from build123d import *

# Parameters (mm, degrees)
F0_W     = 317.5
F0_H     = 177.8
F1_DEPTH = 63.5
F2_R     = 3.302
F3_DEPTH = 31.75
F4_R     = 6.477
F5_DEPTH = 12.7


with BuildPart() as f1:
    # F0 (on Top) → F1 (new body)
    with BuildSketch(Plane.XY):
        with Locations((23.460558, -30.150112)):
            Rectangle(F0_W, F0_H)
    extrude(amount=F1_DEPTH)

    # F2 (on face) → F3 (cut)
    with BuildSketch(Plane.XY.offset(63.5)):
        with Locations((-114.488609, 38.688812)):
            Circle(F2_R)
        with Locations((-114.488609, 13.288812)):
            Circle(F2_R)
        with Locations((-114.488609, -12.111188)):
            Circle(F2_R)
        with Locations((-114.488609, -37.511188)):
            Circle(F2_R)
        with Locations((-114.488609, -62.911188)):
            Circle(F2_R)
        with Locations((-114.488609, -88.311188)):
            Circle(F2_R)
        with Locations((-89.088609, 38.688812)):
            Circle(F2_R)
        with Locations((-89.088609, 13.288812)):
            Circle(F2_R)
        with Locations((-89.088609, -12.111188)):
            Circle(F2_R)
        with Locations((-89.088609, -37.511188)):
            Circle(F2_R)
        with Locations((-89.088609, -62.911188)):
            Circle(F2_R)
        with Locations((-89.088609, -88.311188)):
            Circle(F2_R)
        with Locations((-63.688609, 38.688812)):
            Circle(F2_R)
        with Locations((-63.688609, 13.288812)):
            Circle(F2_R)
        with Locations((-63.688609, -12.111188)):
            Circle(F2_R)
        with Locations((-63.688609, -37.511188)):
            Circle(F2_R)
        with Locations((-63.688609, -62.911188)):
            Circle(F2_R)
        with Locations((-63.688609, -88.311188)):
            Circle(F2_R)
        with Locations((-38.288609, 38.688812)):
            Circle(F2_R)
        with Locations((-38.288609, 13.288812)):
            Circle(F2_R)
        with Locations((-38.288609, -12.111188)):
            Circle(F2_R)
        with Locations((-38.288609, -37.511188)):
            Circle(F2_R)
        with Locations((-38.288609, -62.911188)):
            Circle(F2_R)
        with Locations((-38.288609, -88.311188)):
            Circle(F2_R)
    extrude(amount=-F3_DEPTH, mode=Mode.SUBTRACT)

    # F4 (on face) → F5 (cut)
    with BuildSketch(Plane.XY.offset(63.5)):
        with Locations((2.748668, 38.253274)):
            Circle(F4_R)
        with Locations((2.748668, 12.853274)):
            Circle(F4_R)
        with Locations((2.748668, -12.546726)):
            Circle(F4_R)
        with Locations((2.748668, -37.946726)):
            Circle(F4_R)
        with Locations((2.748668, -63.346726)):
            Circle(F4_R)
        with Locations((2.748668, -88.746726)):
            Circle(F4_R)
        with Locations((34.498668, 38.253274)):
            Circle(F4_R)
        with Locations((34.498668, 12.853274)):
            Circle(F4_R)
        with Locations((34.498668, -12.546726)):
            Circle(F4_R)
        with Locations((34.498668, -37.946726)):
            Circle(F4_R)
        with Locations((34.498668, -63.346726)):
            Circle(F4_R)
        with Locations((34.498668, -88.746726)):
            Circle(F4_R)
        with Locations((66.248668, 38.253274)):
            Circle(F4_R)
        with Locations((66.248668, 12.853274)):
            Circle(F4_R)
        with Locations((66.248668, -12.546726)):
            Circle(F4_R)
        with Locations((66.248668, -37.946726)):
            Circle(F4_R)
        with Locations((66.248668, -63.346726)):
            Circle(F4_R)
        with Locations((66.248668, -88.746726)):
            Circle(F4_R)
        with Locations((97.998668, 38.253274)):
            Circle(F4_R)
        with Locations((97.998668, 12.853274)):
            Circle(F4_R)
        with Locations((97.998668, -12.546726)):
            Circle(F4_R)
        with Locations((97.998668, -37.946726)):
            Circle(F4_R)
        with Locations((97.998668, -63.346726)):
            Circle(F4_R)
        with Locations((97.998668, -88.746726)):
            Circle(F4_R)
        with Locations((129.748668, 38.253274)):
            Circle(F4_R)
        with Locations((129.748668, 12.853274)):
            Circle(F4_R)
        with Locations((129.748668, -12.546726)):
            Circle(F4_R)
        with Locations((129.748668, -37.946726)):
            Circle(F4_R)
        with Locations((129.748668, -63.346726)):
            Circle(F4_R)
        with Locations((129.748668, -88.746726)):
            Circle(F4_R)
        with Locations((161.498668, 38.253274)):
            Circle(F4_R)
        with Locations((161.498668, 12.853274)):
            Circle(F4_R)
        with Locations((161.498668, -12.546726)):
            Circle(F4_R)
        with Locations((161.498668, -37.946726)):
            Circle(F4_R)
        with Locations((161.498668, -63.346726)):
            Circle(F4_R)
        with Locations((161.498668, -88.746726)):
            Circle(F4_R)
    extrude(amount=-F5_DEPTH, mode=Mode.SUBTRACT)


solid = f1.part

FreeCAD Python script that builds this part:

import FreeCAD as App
import Part
import Sketcher
Q = App.Units.Quantity

doc = App.newDocument("Part")
body = doc.addObject("PartDesign::Body", "Body")

sketch1 = body.newObject("Sketcher::SketchObject", "Sketch")
sketch1.AttachmentSupport = (doc.getObject("XY_Plane"), [""])
sketch1.MapMode = "FlatFace"
sketch1.addGeometry(Part.LineSegment(App.Vector(-135, 59, 0), App.Vector(-135, -119, 0)), False)
sketch1.addGeometry(Part.LineSegment(App.Vector(-135, -119, 0), App.Vector(182, -119, 0)), False)
sketch1.addGeometry(Part.LineSegment(App.Vector(182, -119, 0), App.Vector(182, 59, 0)), False)
sketch1.addGeometry(Part.LineSegment(App.Vector(182, 59, 0), App.Vector(-135, 59, 0)), False)
sketch1.addConstraint(Sketcher.Constraint("Coincident", 0, 2, 1, 1))
sketch1.addConstraint(Sketcher.Constraint("Coincident", 1, 2, 2, 1))
sketch1.addConstraint(Sketcher.Constraint("Coincident", 2, 2, 3, 1))
sketch1.addConstraint(Sketcher.Constraint("Coincident", 3, 2, 0, 1))
sketch1.addConstraint(Sketcher.Constraint("Vertical", 0))
sketch1.addConstraint(Sketcher.Constraint("Horizontal", 1))
sketch1.addConstraint(Sketcher.Constraint("Vertical", 2))
sketch1.addConstraint(Sketcher.Constraint("Horizontal", 3))
sketch1.addConstraint(Sketcher.Constraint("DistanceY", 0, 2, 0, 1, Q("7 in")))
sketch1.addConstraint(Sketcher.Constraint("DistanceX", 1, 1, 1, 2, Q("12.5 in")))
sketch1.addConstraint(Sketcher.Constraint("DistanceX", 0, 2, -1, 1, Q("135.289442 mm")))
sketch1.addConstraint(Sketcher.Constraint("DistanceY", 0, 2, -1, 1, Q("119.050112 mm")))
pad1 = body.newObject("PartDesign::Pad", "Pad")
pad1.Profile = sketch1
pad1.Length = Q("2.5 in")

sketch2 = body.newObject("Sketcher::SketchObject", "Sketch001")
sketch2.AttachmentSupport = (doc.getObject("XY_Plane"), [""])
sketch2.MapMode = "FlatFace"
sketch2.AttachmentOffset = App.Placement(App.Vector(0, 0, 2.5 * 25.4), App.Rotation())
sketch2.addGeometry(Part.Circle(App.Vector(-114.5, 38.7, 0), App.Vector(0, 0, 1), 3.3), False)
sketch2.addGeometry(Part.Circle(App.Vector(-114.5, 13.3, 0), App.Vector(0, 0, 1), 3.3), False)
sketch2.addGeometry(Part.Circle(App.Vector(-114.5, -12.1, 0), App.Vector(0, 0, 1), 3.3), False)
sketch2.addGeometry(Part.Circle(App.Vector(-114.5, -37.5, 0), App.Vector(0, 0, 1), 3.3), False)
sketch2.addGeometry(Part.Circle(App.Vector(-114.5, -62.9, 0), App.Vector(0, 0, 1), 3.3), False)
sketch2.addGeometry(Part.Circle(App.Vector(-114.5, -88.3, 0), App.Vector(0, 0, 1), 3.3), False)
sketch2.addGeometry(Part.Circle(App.Vector(-89.1, 38.7, 0), App.Vector(0, 0, 1), 3.3), False)
sketch2.addGeometry(Part.Circle(App.Vector(-89.1, 13.3, 0), App.Vector(0, 0, 1), 3.3), False)
sketch2.addGeometry(Part.Circle(App.Vector(-89.1, -12.1, 0), App.Vector(0, 0, 1), 3.3), False)
sketch2.addGeometry(Part.Circle(App.Vector(-89.1, -37.5, 0), App.Vector(0, 0, 1), 3.3), False)
sketch2.addGeometry(Part.Circle(App.Vector(-89.1, -62.9, 0), App.Vector(0, 0, 1), 3.3), False)
sketch2.addGeometry(Part.Circle(App.Vector(-89.1, -88.3, 0), App.Vector(0, 0, 1), 3.3), False)
sketch2.addGeometry(Part.Circle(App.Vector(-63.7, 38.7, 0), App.Vector(0, 0, 1), 3.3), False)
sketch2.addGeometry(Part.Circle(App.Vector(-63.7, 13.3, 0), App.Vector(0, 0, 1), 3.3), False)
sketch2.addGeometry(Part.Circle(App.Vector(-63.7, -12.1, 0), App.Vector(0, 0, 1), 3.3), False)
sketch2.addGeometry(Part.Circle(App.Vector(-63.7, -37.5, 0), App.Vector(0, 0, 1), 3.3), False)
sketch2.addGeometry(Part.Circle(App.Vector(-63.7, -62.9, 0), App.Vector(0, 0, 1), 3.3), False)
sketch2.addGeometry(Part.Circle(App.Vector(-63.7, -88.3, 0), App.Vector(0, 0, 1), 3.3), False)
sketch2.addGeometry(Part.Circle(App.Vector(-38.3, 38.7, 0), App.Vector(0, 0, 1), 3.3), False)
sketch2.addGeometry(Part.Circle(App.Vector(-38.3, 13.3, 0), App.Vector(0, 0, 1), 3.3), False)
sketch2.addGeometry(Part.Circle(App.Vector(-38.3, -12.1, 0), App.Vector(0, 0, 1), 3.3), False)
sketch2.addGeometry(Part.Circle(App.Vector(-38.3, -37.5, 0), App.Vector(0, 0, 1), 3.3), False)
sketch2.addGeometry(Part.Circle(App.Vector(-38.3, -62.9, 0), App.Vector(0, 0, 1), 3.3), False)
sketch2.addGeometry(Part.Circle(App.Vector(-38.3, -88.3, 0), App.Vector(0, 0, 1), 3.3), False)
sketch2.addConstraint(Sketcher.Constraint("Equal", 0, 1))
sketch2.addConstraint(Sketcher.Constraint("Equal", 1, 2))
sketch2.addConstraint(Sketcher.Constraint("Equal", 2, 3))
sketch2.addConstraint(Sketcher.Constraint("Equal", 3, 4))
sketch2.addConstraint(Sketcher.Constraint("Equal", 4, 5))
sketch2.addConstraint(Sketcher.Constraint("Equal", 5, 6))
sketch2.addConstraint(Sketcher.Constraint("Equal", 6, 7))
sketch2.addConstraint(Sketcher.Constraint("Equal", 7, 8))
sketch2.addConstraint(Sketcher.Constraint("Equal", 8, 9))
sketch2.addConstraint(Sketcher.Constraint("Equal", 9, 10))
sketch2.addConstraint(Sketcher.Constraint("Equal", 10, 11))
sketch2.addConstraint(Sketcher.Constraint("Equal", 11, 12))
sketch2.addConstraint(Sketcher.Constraint("Equal", 12, 13))
sketch2.addConstraint(Sketcher.Constraint("Equal", 13, 14))
sketch2.addConstraint(Sketcher.Constraint("Equal", 14, 15))
sketch2.addConstraint(Sketcher.Constraint("Equal", 15, 16))
sketch2.addConstraint(Sketcher.Constraint("Equal", 16, 17))
sketch2.addConstraint(Sketcher.Constraint("Equal", 17, 18))
sketch2.addConstraint(Sketcher.Constraint("Equal", 18, 19))
sketch2.addConstraint(Sketcher.Constraint("Equal", 19, 20))
sketch2.addConstraint(Sketcher.Constraint("Equal", 20, 21))
sketch2.addConstraint(Sketcher.Constraint("Equal", 21, 22))
sketch2.addConstraint(Sketcher.Constraint("Equal", 22, 23))
sketch2.addConstraint(Sketcher.Constraint("Horizontal", 0, 3, 6, 3))
sketch2.addConstraint(Sketcher.Constraint("Horizontal", 1, 3, 7, 3))
sketch2.addConstraint(Sketcher.Constraint("Horizontal", 2, 3, 8, 3))
sketch2.addConstraint(Sketcher.Constraint("Horizontal", 3, 3, 9, 3))
sketch2.addConstraint(Sketcher.Constraint("Horizontal", 4, 3, 10, 3))
sketch2.addConstraint(Sketcher.Constraint("Horizontal", 5, 3, 11, 3))
sketch2.addConstraint(Sketcher.Constraint("Horizontal", 6, 3, 12, 3))
sketch2.addConstraint(Sketcher.Constraint("Horizontal", 7, 3, 13, 3))
sketch2.addConstraint(Sketcher.Constraint("Horizontal", 8, 3, 14, 3))
sketch2.addConstraint(Sketcher.Constraint("Horizontal", 9, 3, 15, 3))
sketch2.addConstraint(Sketcher.Constraint("Horizontal", 10, 3, 16, 3))
sketch2.addConstraint(Sketcher.Constraint("Horizontal", 11, 3, 17, 3))
sketch2.addConstraint(Sketcher.Constraint("Horizontal", 12, 3, 18, 3))
sketch2.addConstraint(Sketcher.Constraint("Horizontal", 13, 3, 19, 3))
sketch2.addConstraint(Sketcher.Constraint("Horizontal", 14, 3, 20, 3))
sketch2.addConstraint(Sketcher.Constraint("Horizontal", 15, 3, 21, 3))
sketch2.addConstraint(Sketcher.Constraint("Horizontal", 16, 3, 22, 3))
sketch2.addConstraint(Sketcher.Constraint("Horizontal", 17, 3, 23, 3))
sketch2.addConstraint(Sketcher.Constraint("Vertical", 0, 3, 1, 3))
sketch2.addConstraint(Sketcher.Constraint("Vertical", 1, 3, 2, 3))
sketch2.addConstraint(Sketcher.Constraint("Vertical", 2, 3, 3, 3))
sketch2.addConstraint(Sketcher.Constraint("Vertical", 3, 3, 4, 3))
sketch2.addConstraint(Sketcher.Constraint("Vertical", 4, 3, 5, 3))
sketch2.addConstraint(Sketcher.Constraint("Vertical", 6, 3, 7, 3))
sketch2.addConstraint(Sketcher.Constraint("Vertical", 7, 3, 8, 3))
sketch2.addConstraint(Sketcher.Constraint("Vertical", 8, 3, 9, 3))
sketch2.addConstraint(Sketcher.Constraint("Vertical", 9, 3, 10, 3))
sketch2.addConstraint(Sketcher.Constraint("Vertical", 10, 3, 11, 3))
sketch2.addConstraint(Sketcher.Constraint("Vertical", 12, 3, 13, 3))
sketch2.addConstraint(Sketcher.Constraint("Vertical", 13, 3, 14, 3))
sketch2.addConstraint(Sketcher.Constraint("Vertical", 14, 3, 15, 3))
sketch2.addConstraint(Sketcher.Constraint("Vertical", 15, 3, 16, 3))
sketch2.addConstraint(Sketcher.Constraint("Vertical", 16, 3, 17, 3))
sketch2.addConstraint(Sketcher.Constraint("Vertical", 18, 3, 19, 3))
sketch2.addConstraint(Sketcher.Constraint("Vertical", 19, 3, 20, 3))
sketch2.addConstraint(Sketcher.Constraint("Vertical", 20, 3, 21, 3))
sketch2.addConstraint(Sketcher.Constraint("Vertical", 21, 3, 22, 3))
sketch2.addConstraint(Sketcher.Constraint("Vertical", 22, 3, 23, 3))
sketch2.addConstraint(Sketcher.Constraint("Diameter", 0, Q("0.26 in")))
sketch2.addConstraint(Sketcher.Constraint("DistanceY", 1, 3, 0, 3, Q("1 in")))
sketch2.addConstraint(Sketcher.Constraint("DistanceY", 2, 3, 1, 3, Q("1 in")))
sketch2.addConstraint(Sketcher.Constraint("DistanceY", 3, 3, 2, 3, Q("1 in")))
sketch2.addConstraint(Sketcher.Constraint("DistanceY", 4, 3, 3, 3, Q("1 in")))
sketch2.addConstraint(Sketcher.Constraint("DistanceY", 5, 3, 4, 3, Q("1 in")))
sketch2.addConstraint(Sketcher.Constraint("DistanceX", 0, 3, 6, 3, Q("1 in")))
sketch2.addConstraint(Sketcher.Constraint("DistanceX", 6, 3, 12, 3, Q("1 in")))
sketch2.addConstraint(Sketcher.Constraint("DistanceX", 12, 3, 18, 3, Q("1 in")))
sketch2.addConstraint(Sketcher.Constraint("DistanceX", 0, 3, -1, 1, Q("114.488609 mm")))
sketch2.addConstraint(Sketcher.Constraint("DistanceY", 4, 3, -1, 1, Q("62.911188 mm")))
pocket1 = body.newObject("PartDesign::Pocket", "Pocket")
pocket1.Profile = sketch2
pocket1.Length = Q("1.25 in")

sketch3 = body.newObject("Sketcher::SketchObject", "Sketch002")
sketch3.AttachmentSupport = (doc.getObject("XY_Plane"), [""])
sketch3.MapMode = "FlatFace"
sketch3.AttachmentOffset = App.Placement(App.Vector(0, 0, 2.5 * 25.4), App.Rotation())
sketch3.addGeometry(Part.Circle(App.Vector(3, 38, 0), App.Vector(0, 0, 1), 6), False)
sketch3.addGeometry(Part.Circle(App.Vector(3, 13, 0), App.Vector(0, 0, 1), 6), False)
sketch3.addGeometry(Part.Circle(App.Vector(3, -13, 0), App.Vector(0, 0, 1), 6), False)
sketch3.addGeometry(Part.Circle(App.Vector(3, -38, 0), App.Vector(0, 0, 1), 6), False)
sketch3.addGeometry(Part.Circle(App.Vector(3, -63, 0), App.Vector(0, 0, 1), 6), False)
sketch3.addGeometry(Part.Circle(App.Vector(3, -89, 0), App.Vector(0, 0, 1), 6), False)
sketch3.addGeometry(Part.Circle(App.Vector(34, 38, 0), App.Vector(0, 0, 1), 6), False)
sketch3.addGeometry(Part.Circle(App.Vector(34, 13, 0), App.Vector(0, 0, 1), 6), False)
sketch3.addGeometry(Part.Circle(App.Vector(34, -13, 0), App.Vector(0, 0, 1), 6), False)
sketch3.addGeometry(Part.Circle(App.Vector(34, -38, 0), App.Vector(0, 0, 1), 6), False)
sketch3.addGeometry(Part.Circle(App.Vector(34, -63, 0), App.Vector(0, 0, 1), 6), False)
sketch3.addGeometry(Part.Circle(App.Vector(34, -89, 0), App.Vector(0, 0, 1), 6), False)
sketch3.addGeometry(Part.Circle(App.Vector(66, 38, 0), App.Vector(0, 0, 1), 6), False)
sketch3.addGeometry(Part.Circle(App.Vector(66, 13, 0), App.Vector(0, 0, 1), 6), False)
sketch3.addGeometry(Part.Circle(App.Vector(66, -13, 0), App.Vector(0, 0, 1), 6), False)
sketch3.addGeometry(Part.Circle(App.Vector(66, -38, 0), App.Vector(0, 0, 1), 6), False)
sketch3.addGeometry(Part.Circle(App.Vector(66, -63, 0), App.Vector(0, 0, 1), 6), False)
sketch3.addGeometry(Part.Circle(App.Vector(66, -89, 0), App.Vector(0, 0, 1), 6), False)
sketch3.addGeometry(Part.Circle(App.Vector(98, 38, 0), App.Vector(0, 0, 1), 6), False)
sketch3.addGeometry(Part.Circle(App.Vector(98, 13, 0), App.Vector(0, 0, 1), 6), False)
sketch3.addGeometry(Part.Circle(App.Vector(98, -13, 0), App.Vector(0, 0, 1), 6), False)
sketch3.addGeometry(Part.Circle(App.Vector(98, -38, 0), App.Vector(0, 0, 1), 6), False)
sketch3.addGeometry(Part.Circle(App.Vector(98, -63, 0), App.Vector(0, 0, 1), 6), False)
sketch3.addGeometry(Part.Circle(App.Vector(98, -89, 0), App.Vector(0, 0, 1), 6), False)
sketch3.addGeometry(Part.Circle(App.Vector(130, 38, 0), App.Vector(0, 0, 1), 6), False)
sketch3.addGeometry(Part.Circle(App.Vector(130, 13, 0), App.Vector(0, 0, 1), 6), False)
sketch3.addGeometry(Part.Circle(App.Vector(130, -13, 0), App.Vector(0, 0, 1), 6), False)
sketch3.addGeometry(Part.Circle(App.Vector(130, -38, 0), App.Vector(0, 0, 1), 6), False)
sketch3.addGeometry(Part.Circle(App.Vector(130, -63, 0), App.Vector(0, 0, 1), 6), False)
sketch3.addGeometry(Part.Circle(App.Vector(130, -89, 0), App.Vector(0, 0, 1), 6), False)
sketch3.addGeometry(Part.Circle(App.Vector(161, 38, 0), App.Vector(0, 0, 1), 6), False)
sketch3.addGeometry(Part.Circle(App.Vector(161, 13, 0), App.Vector(0, 0, 1), 6), False)
sketch3.addGeometry(Part.Circle(App.Vector(161, -13, 0), App.Vector(0, 0, 1), 6), False)
sketch3.addGeometry(Part.Circle(App.Vector(161, -38, 0), App.Vector(0, 0, 1), 6), False)
sketch3.addGeometry(Part.Circle(App.Vector(161, -63, 0), App.Vector(0, 0, 1), 6), False)
sketch3.addGeometry(Part.Circle(App.Vector(161, -89, 0), App.Vector(0, 0, 1), 6), False)
sketch3.addConstraint(Sketcher.Constraint("Equal", 0, 1))
sketch3.addConstraint(Sketcher.Constraint("Equal", 1, 2))
sketch3.addConstraint(Sketcher.Constraint("Equal", 2, 3))
sketch3.addConstraint(Sketcher.Constraint("Equal", 3, 4))
sketch3.addConstraint(Sketcher.Constraint("Equal", 4, 5))
sketch3.addConstraint(Sketcher.Constraint("Equal", 5, 6))
sketch3.addConstraint(Sketcher.Constraint("Equal", 6, 7))
sketch3.addConstraint(Sketcher.Constraint("Equal", 7, 8))
sketch3.addConstraint(Sketcher.Constraint("Equal", 8, 9))
sketch3.addConstraint(Sketcher.Constraint("Equal", 9, 10))
sketch3.addConstraint(Sketcher.Constraint("Equal", 10, 11))
sketch3.addConstraint(Sketcher.Constraint("Equal", 11, 12))
sketch3.addConstraint(Sketcher.Constraint("Equal", 12, 13))
sketch3.addConstraint(Sketcher.Constraint("Equal", 13, 14))
sketch3.addConstraint(Sketcher.Constraint("Equal", 14, 15))
sketch3.addConstraint(Sketcher.Constraint("Equal", 15, 16))
sketch3.addConstraint(Sketcher.Constraint("Equal", 16, 17))
sketch3.addConstraint(Sketcher.Constraint("Equal", 17, 18))
sketch3.addConstraint(Sketcher.Constraint("Equal", 18, 19))
sketch3.addConstraint(Sketcher.Constraint("Equal", 19, 20))
sketch3.addConstraint(Sketcher.Constraint("Equal", 20, 21))
sketch3.addConstraint(Sketcher.Constraint("Equal", 21, 22))
sketch3.addConstraint(Sketcher.Constraint("Equal", 22, 23))
sketch3.addConstraint(Sketcher.Constraint("Equal", 23, 24))
sketch3.addConstraint(Sketcher.Constraint("Equal", 24, 25))
sketch3.addConstraint(Sketcher.Constraint("Equal", 25, 26))
sketch3.addConstraint(Sketcher.Constraint("Equal", 26, 27))
sketch3.addConstraint(Sketcher.Constraint("Equal", 27, 28))
sketch3.addConstraint(Sketcher.Constraint("Equal", 28, 29))
sketch3.addConstraint(Sketcher.Constraint("Equal", 29, 30))
sketch3.addConstraint(Sketcher.Constraint("Equal", 30, 31))
sketch3.addConstraint(Sketcher.Constraint("Equal", 31, 32))
sketch3.addConstraint(Sketcher.Constraint("Equal", 32, 33))
sketch3.addConstraint(Sketcher.Constraint("Equal", 33, 34))
sketch3.addConstraint(Sketcher.Constraint("Equal", 34, 35))
sketch3.addConstraint(Sketcher.Constraint("Horizontal", 0, 3, 6, 3))
sketch3.addConstraint(Sketcher.Constraint("Horizontal", 1, 3, 7, 3))
sketch3.addConstraint(Sketcher.Constraint("Horizontal", 2, 3, 8, 3))
sketch3.addConstraint(Sketcher.Constraint("Horizontal", 3, 3, 9, 3))
sketch3.addConstraint(Sketcher.Constraint("Horizontal", 4, 3, 10, 3))
sketch3.addConstraint(Sketcher.Constraint("Horizontal", 5, 3, 11, 3))
sketch3.addConstraint(Sketcher.Constraint("Horizontal", 6, 3, 12, 3))
sketch3.addConstraint(Sketcher.Constraint("Horizontal", 7, 3, 13, 3))
sketch3.addConstraint(Sketcher.Constraint("Horizontal", 8, 3, 14, 3))
sketch3.addConstraint(Sketcher.Constraint("Horizontal", 9, 3, 15, 3))
sketch3.addConstraint(Sketcher.Constraint("Horizontal", 10, 3, 16, 3))
sketch3.addConstraint(Sketcher.Constraint("Horizontal", 11, 3, 17, 3))
sketch3.addConstraint(Sketcher.Constraint("Horizontal", 12, 3, 18, 3))
sketch3.addConstraint(Sketcher.Constraint("Horizontal", 13, 3, 19, 3))
sketch3.addConstraint(Sketcher.Constraint("Horizontal", 14, 3, 20, 3))
sketch3.addConstraint(Sketcher.Constraint("Horizontal", 15, 3, 21, 3))
sketch3.addConstraint(Sketcher.Constraint("Horizontal", 16, 3, 22, 3))
sketch3.addConstraint(Sketcher.Constraint("Horizontal", 17, 3, 23, 3))
sketch3.addConstraint(Sketcher.Constraint("Horizontal", 18, 3, 24, 3))
sketch3.addConstraint(Sketcher.Constraint("Horizontal", 19, 3, 25, 3))
sketch3.addConstraint(Sketcher.Constraint("Horizontal", 20, 3, 26, 3))
sketch3.addConstraint(Sketcher.Constraint("Horizontal", 21, 3, 27, 3))
sketch3.addConstraint(Sketcher.Constraint("Horizontal", 22, 3, 28, 3))
sketch3.addConstraint(Sketcher.Constraint("Horizontal", 23, 3, 29, 3))
sketch3.addConstraint(Sketcher.Constraint("Horizontal", 24, 3, 30, 3))
sketch3.addConstraint(Sketcher.Constraint("Horizontal", 25, 3, 31, 3))
sketch3.addConstraint(Sketcher.Constraint("Horizontal", 26, 3, 32, 3))
sketch3.addConstraint(Sketcher.Constraint("Horizontal", 27, 3, 33, 3))
sketch3.addConstraint(Sketcher.Constraint("Horizontal", 28, 3, 34, 3))
sketch3.addConstraint(Sketcher.Constraint("Horizontal", 29, 3, 35, 3))
sketch3.addConstraint(Sketcher.Constraint("Vertical", 0, 3, 1, 3))
sketch3.addConstraint(Sketcher.Constraint("Vertical", 1, 3, 2, 3))
sketch3.addConstraint(Sketcher.Constraint("Vertical", 2, 3, 3, 3))
sketch3.addConstraint(Sketcher.Constraint("Vertical", 3, 3, 4, 3))
sketch3.addConstraint(Sketcher.Constraint("Vertical", 4, 3, 5, 3))
sketch3.addConstraint(Sketcher.Constraint("Vertical", 6, 3, 7, 3))
sketch3.addConstraint(Sketcher.Constraint("Vertical", 7, 3, 8, 3))
sketch3.addConstraint(Sketcher.Constraint("Vertical", 8, 3, 9, 3))
sketch3.addConstraint(Sketcher.Constraint("Vertical", 9, 3, 10, 3))
sketch3.addConstraint(Sketcher.Constraint("Vertical", 10, 3, 11, 3))
sketch3.addConstraint(Sketcher.Constraint("Vertical", 12, 3, 13, 3))
sketch3.addConstraint(Sketcher.Constraint("Vertical", 13, 3, 14, 3))
sketch3.addConstraint(Sketcher.Constraint("Vertical", 14, 3, 15, 3))
sketch3.addConstraint(Sketcher.Constraint("Vertical", 15, 3, 16, 3))
sketch3.addConstraint(Sketcher.Constraint("Vertical", 16, 3, 17, 3))
sketch3.addConstraint(Sketcher.Constraint("Vertical", 18, 3, 19, 3))
sketch3.addConstraint(Sketcher.Constraint("Vertical", 19, 3, 20, 3))
sketch3.addConstraint(Sketcher.Constraint("Vertical", 20, 3, 21, 3))
sketch3.addConstraint(Sketcher.Constraint("Vertical", 21, 3, 22, 3))
sketch3.addConstraint(Sketcher.Constraint("Vertical", 22, 3, 23, 3))
sketch3.addConstraint(Sketcher.Constraint("Vertical", 24, 3, 25, 3))
sketch3.addConstraint(Sketcher.Constraint("Vertical", 25, 3, 26, 3))
sketch3.addConstraint(Sketcher.Constraint("Vertical", 26, 3, 27, 3))
sketch3.addConstraint(Sketcher.Constraint("Vertical", 27, 3, 28, 3))
sketch3.addConstraint(Sketcher.Constraint("Vertical", 28, 3, 29, 3))
sketch3.addConstraint(Sketcher.Constraint("Vertical", 30, 3, 31, 3))
sketch3.addConstraint(Sketcher.Constraint("Vertical", 31, 3, 32, 3))
sketch3.addConstraint(Sketcher.Constraint("Vertical", 32, 3, 33, 3))
sketch3.addConstraint(Sketcher.Constraint("Vertical", 33, 3, 34, 3))
sketch3.addConstraint(Sketcher.Constraint("Vertical", 34, 3, 35, 3))
sketch3.addConstraint(Sketcher.Constraint("Diameter", 0, Q("0.51 in")))
sketch3.addConstraint(Sketcher.Constraint("DistanceY", 1, 3, 0, 3, Q("1 in")))
sketch3.addConstraint(Sketcher.Constraint("DistanceY", 2, 3, 1, 3, Q("1 in")))
sketch3.addConstraint(Sketcher.Constraint("DistanceY", 3, 3, 2, 3, Q("1 in")))
sketch3.addConstraint(Sketcher.Constraint("DistanceY", 4, 3, 3, 3, Q("1 in")))
sketch3.addConstraint(Sketcher.Constraint("DistanceY", 5, 3, 4, 3, Q("1 in")))
sketch3.addConstraint(Sketcher.Constraint("DistanceX", 0, 3, 12, 3, Q("2.5 in")))
sketch3.addConstraint(Sketcher.Constraint("DistanceX", 6, 3, 18, 3, Q("2.5 in")))
sketch3.addConstraint(Sketcher.Constraint("DistanceX", 12, 3, 24, 3, Q("2.5 in")))
sketch3.addConstraint(Sketcher.Constraint("DistanceX", 18, 3, 30, 3, Q("2.5 in")))
sketch3.addConstraint(Sketcher.Constraint("DistanceX", 0, 3, 6, 3, Q("1.25 in")))
sketch3.addConstraint(Sketcher.Constraint("DistanceX", -1, 1, 6, 3, Q("34.498668 mm")))
sketch3.addConstraint(Sketcher.Constraint("DistanceY", -1, 1, 0, 3, Q("38.253274 mm")))
pocket2 = body.newObject("PartDesign::Pocket", "Pocket001")
pocket2.Profile = sketch3
pocket2.Length = Q("0.5 in")

doc.recompute()
